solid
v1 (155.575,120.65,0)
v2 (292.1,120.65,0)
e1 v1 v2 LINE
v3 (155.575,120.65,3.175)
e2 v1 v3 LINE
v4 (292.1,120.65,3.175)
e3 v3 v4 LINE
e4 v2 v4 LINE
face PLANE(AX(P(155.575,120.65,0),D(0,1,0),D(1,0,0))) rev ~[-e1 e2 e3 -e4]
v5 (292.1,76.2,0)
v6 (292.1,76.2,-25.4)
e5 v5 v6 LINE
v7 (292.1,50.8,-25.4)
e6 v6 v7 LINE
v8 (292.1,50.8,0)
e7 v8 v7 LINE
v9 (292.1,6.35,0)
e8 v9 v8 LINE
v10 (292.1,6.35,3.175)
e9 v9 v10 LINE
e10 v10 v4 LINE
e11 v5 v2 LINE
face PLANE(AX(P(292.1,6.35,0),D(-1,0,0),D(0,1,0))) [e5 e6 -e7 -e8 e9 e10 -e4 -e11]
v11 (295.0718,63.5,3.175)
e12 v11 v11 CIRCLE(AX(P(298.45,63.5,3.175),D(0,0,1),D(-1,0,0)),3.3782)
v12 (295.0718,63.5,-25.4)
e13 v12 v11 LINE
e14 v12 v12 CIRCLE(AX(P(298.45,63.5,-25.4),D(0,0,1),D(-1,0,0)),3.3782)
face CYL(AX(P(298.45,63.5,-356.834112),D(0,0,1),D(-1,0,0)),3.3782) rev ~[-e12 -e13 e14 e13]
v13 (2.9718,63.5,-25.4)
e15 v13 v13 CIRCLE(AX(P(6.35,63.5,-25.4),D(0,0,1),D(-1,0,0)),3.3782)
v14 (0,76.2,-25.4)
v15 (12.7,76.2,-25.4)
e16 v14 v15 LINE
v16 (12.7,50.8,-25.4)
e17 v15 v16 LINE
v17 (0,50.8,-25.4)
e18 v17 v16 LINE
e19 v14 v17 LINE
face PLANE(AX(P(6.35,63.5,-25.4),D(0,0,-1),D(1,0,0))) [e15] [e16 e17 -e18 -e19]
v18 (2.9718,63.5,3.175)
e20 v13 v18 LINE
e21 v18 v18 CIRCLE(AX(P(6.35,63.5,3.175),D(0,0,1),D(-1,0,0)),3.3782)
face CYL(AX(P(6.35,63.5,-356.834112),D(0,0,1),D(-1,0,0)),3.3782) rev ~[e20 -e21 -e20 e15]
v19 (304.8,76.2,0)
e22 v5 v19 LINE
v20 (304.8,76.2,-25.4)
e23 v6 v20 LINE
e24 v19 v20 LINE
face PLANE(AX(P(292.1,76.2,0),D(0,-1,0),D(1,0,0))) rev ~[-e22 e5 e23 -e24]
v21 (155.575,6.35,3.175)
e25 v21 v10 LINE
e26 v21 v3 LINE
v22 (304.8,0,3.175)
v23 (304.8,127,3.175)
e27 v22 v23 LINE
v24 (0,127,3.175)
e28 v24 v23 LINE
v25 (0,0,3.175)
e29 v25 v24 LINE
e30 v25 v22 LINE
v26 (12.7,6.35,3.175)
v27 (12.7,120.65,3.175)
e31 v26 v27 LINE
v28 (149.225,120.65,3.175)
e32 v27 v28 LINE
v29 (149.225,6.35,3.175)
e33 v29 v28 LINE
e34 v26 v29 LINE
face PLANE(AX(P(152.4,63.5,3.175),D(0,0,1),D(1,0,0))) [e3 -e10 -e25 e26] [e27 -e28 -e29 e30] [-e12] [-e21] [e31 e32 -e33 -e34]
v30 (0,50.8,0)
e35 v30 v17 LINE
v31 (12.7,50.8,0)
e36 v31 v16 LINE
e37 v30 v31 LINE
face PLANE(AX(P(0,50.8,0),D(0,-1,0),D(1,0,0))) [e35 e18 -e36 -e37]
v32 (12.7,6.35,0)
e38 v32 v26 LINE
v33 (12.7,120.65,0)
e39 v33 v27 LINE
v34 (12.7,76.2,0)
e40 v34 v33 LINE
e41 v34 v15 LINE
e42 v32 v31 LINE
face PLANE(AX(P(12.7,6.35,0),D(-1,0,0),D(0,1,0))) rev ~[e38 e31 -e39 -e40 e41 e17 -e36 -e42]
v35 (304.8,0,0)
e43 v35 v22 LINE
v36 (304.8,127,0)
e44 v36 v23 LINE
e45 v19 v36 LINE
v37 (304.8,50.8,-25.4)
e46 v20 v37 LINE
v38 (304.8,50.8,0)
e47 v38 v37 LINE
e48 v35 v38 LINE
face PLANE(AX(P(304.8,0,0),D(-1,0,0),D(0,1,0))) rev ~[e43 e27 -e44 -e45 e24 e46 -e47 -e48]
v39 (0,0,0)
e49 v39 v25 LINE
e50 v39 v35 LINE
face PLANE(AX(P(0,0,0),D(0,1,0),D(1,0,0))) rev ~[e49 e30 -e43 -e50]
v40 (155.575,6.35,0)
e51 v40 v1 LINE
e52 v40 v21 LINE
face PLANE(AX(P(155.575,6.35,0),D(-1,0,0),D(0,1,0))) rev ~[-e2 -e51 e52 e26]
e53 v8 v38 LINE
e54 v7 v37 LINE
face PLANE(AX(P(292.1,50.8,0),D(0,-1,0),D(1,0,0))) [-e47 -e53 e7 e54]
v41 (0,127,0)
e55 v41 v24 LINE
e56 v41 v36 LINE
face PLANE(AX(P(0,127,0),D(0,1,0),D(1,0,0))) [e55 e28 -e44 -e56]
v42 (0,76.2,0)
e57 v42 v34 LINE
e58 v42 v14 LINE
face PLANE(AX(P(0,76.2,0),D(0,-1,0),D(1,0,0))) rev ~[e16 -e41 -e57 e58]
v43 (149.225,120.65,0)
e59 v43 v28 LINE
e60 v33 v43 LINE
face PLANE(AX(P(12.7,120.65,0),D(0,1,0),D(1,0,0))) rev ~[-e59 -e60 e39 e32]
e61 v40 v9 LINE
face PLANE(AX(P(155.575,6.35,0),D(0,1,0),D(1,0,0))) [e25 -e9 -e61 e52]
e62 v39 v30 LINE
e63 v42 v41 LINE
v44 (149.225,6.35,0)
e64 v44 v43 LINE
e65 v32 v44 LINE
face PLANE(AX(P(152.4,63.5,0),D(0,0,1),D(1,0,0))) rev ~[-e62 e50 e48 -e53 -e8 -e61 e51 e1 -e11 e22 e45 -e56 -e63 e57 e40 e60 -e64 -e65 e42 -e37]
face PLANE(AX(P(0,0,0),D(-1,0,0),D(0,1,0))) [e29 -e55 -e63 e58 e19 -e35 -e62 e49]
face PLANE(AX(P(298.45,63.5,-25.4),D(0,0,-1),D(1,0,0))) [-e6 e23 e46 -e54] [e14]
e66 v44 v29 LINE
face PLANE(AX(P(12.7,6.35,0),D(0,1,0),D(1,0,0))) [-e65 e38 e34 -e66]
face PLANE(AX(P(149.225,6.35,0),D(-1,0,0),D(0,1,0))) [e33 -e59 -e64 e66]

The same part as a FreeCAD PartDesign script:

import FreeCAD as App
import Part
import Sketcher

V = App.Vector
Q = App.Units.Quantity

doc = App.newDocument("Part")
params = doc.addObject("Spreadsheet::Sheet", "Params")
for row, (alias, value) in enumerate([
    ("sketch1_width", "12 in"),
    ("sketch1_height", "5 in"),
    ("sketch1_height2", "4.5 in"),
    ("sketch1_width2", "5.375 in"),
    ("pad1_length", "0.125 in"),
    ("sketch2_height", "1 in"),
    ("sketch2_width", "0.5 in"),
    ("pad2_length", "1 in"),
    ("sketch3_diameter", "0.266 in"),
    ("hole_diameter", "0.266 in"),
], start=1):
    params.set(f"A{row}", alias)
    params.set(f"B{row}", "=" + value)
    params.setAlias(f"B{row}", alias)

body = doc.addObject("PartDesign::Body", "Body")

sketch1 = body.newObject("Sketcher::SketchObject", "Sketch")
sketch1.AttachmentSupport = (doc.getObject("XY_Plane"), [""])
sketch1.MapMode = "FlatFace"
sketch1.addGeometry([
    Part.LineSegment(V(0, 127, 0), V(0, 0, 0)),
    Part.LineSegment(V(0, 0, 0), V(305, 0, 0)),
    Part.LineSegment(V(305, 0, 0), V(305, 127, 0)),
    Part.LineSegment(V(305, 127, 0), V(0, 127, 0)),
    Part.LineSegment(V(149, 6, 0), V(13, 6, 0)),
    Part.LineSegment(V(13, 6, 0), V(13, 121, 0)),
    Part.LineSegment(V(13, 121, 0), V(149, 121, 0)),
    Part.LineSegment(V(149, 121, 0), V(149, 6, 0)),
    Part.LineSegment(V(292, 6, 0), V(156, 6, 0)),
    Part.LineSegment(V(156, 6, 0), V(156, 121, 0)),
    Part.LineSegment(V(156, 121, 0), V(292, 121, 0)),
    Part.LineSegment(V(292, 121, 0), V(292, 6, 0)),
], False)
sketch1.addConstraint([
    Sketcher.Constraint("Coincident", 0, 2, 1, 1),
    Sketcher.Constraint("Coincident", 1, 2, 2, 1),
    Sketcher.Constraint("Coincident", 2, 2, 3, 1),
    Sketcher.Constraint("Coincident", 3, 2, 0, 1),
    Sketcher.Constraint("Coincident", 4, 2, 5, 1),
    Sketcher.Constraint("Coincident", 5, 2, 6, 1),
    Sketcher.Constraint("Coincident", 6, 2, 7, 1),
    Sketcher.Constraint("Coincident", 7, 2, 4, 1),
    Sketcher.Constraint("Coincident", 8, 2, 9, 1),
    Sketcher.Constraint("Coincident", 9, 2, 10, 1),
    Sketcher.Constraint("Coincident", 10, 2, 11, 1),
    Sketcher.Constraint("Coincident", 11, 2, 8, 1),
    Sketcher.Constraint("Vertical", 0),
    Sketcher.Constraint("Horizontal", 1),
    Sketcher.Constraint("Vertical", 2),
    Sketcher.Constraint("Horizontal", 3),
    Sketcher.Constraint("Horizontal", 4),
    Sketcher.Constraint("Vertical", 5),
    Sketcher.Constraint("Horizontal", 6),
    Sketcher.Constraint("Vertical", 7),
    Sketcher.Constraint("Horizontal", 8),
    Sketcher.Constraint("Vertical", 9),
    Sketcher.Constraint("Horizontal", 10),
    Sketcher.Constraint("Vertical", 11),
    Sketcher.Constraint("Coincident", 0, 2, -1, 1),
    Sketcher.Constraint("Horizontal", 7, 2, 8, 2),
    Sketcher.Constraint("Horizontal", 6, 2, 9, 2),
    Sketcher.Constraint("Equal", 6, 8),
    Sketcher.Constraint("DistanceX", 1, 1, 1, 2, Q("12 in")),
    Sketcher.Constraint("DistanceY", 0, 2, 0, 1, Q("5 in")),
    Sketcher.Constraint("DistanceY", 5, 1, 5, 2, Q("4.5 in")),
    Sketcher.Constraint("DistanceX", -1, 1, 4, 2, Q("0.5 in")),
    Sketcher.Constraint("DistanceX", -1, 1, 10, 2, Q("11.5 in")),
    Sketcher.Constraint("DistanceX", 4, 2, 4, 1, Q("5.375 in")),
    Sketcher.Constraint("DistanceY", -1, 1, 4, 2, Q("0.25 in")),
])
sketch1.setExpression("Constraints[28]", "Params.sketch1_width")
sketch1.setExpression("Constraints[29]", "Params.sketch1_height")
sketch1.setExpression("Constraints[30]", "Params.sketch1_height2")
sketch1.setExpression("Constraints[33]", "Params.sketch1_width2")
pad1 = body.newObject("PartDesign::Pad", "Pad")
pad1.Profile = sketch1
pad1.setExpression("Length", "Params.pad1_length")

sketch2 = body.newObject("Sketcher::SketchObject", "Sketch001")
sketch2.AttachmentSupport = (doc.getObject("XY_Plane"), [""])
sketch2.MapMode = "FlatFace"
sketch2.addGeometry([
    Part.LineSegment(V(0, 51, 0), V(0, 76, 0)),
    Part.LineSegment(V(0, 76, 0), V(13, 76, 0)),
    Part.LineSegment(V(13, 76, 0), V(13, 51, 0)),
    Part.LineSegment(V(13, 51, 0), V(0, 51, 0)),
    Part.LineSegment(V(292, 51, 0), V(292, 76, 0)),
    Part.LineSegment(V(292, 76, 0), V(305, 76, 0)),
    Part.LineSegment(V(305, 76, 0), V(305, 51, 0)),
    Part.LineSegment(V(305, 51, 0), V(292, 51, 0)),
], False)
sketch2.addConstraint([
    Sketcher.Constraint("Coincident", 0, 2, 1, 1),
    Sketcher.Constraint("Coincident", 1, 2, 2, 1),
    Sketcher.Constraint("Coincident", 2, 2, 3, 1),
    Sketcher.Constraint("Coincident", 3, 2, 0, 1),
    Sketcher.Constraint("Coincident", 4, 2, 5, 1),
    Sketcher.Constraint("Coincident", 5, 2, 6, 1),
    Sketcher.Constraint("Coincident", 6, 2, 7, 1),
    Sketcher.Constraint("Coincident", 7, 2, 4, 1),
    Sketcher.Constraint("Vertical", 0),
    Sketcher.Constraint("Horizontal", 1),
    Sketcher.Constraint("Vertical", 2),
    Sketcher.Constraint("Horizontal", 3),
    Sketcher.Constraint("Vertical", 4),
    Sketcher.Constraint("Horizontal", 5),
    Sketcher.Constraint("Vertical", 6),
    Sketcher.Constraint("Horizontal", 7),
    Sketcher.Constraint("PointOnObject", 0, 2, -2),
    Sketcher.Constraint("Horizontal", 1, 2, 4, 2),
    Sketcher.Constraint("Horizontal", 3, 2, 6, 2),
    Sketcher.Constraint("Equal", 3, 5),
    Sketcher.Constraint("DistanceY", 0, 1, 0, 2, Q("1 in")),
    Sketcher.Constraint("DistanceX", 1, 1, 1, 2, Q("0.5 in")),
    Sketcher.Constraint("DistanceY", -1, 1, 0, 2, Q("3 in")),
    Sketcher.Constraint("DistanceX", -1, 1, 5, 2, Q("12 in")),
])
sketch2.setExpression("Constraints[20]", "Params.sketch2_height")
sketch2.setExpression("Constraints[21]", "Params.sketch2_width")
pad2 = body.newObject("PartDesign::Pad", "Pad001")
pad2.Profile = sketch2
pad2.setExpression("Length", "Params.pad2_length")
pad2.Reversed = True

sketch3 = body.newObject("Sketcher::SketchObject", "Sketch002")
sketch3.AttachmentSupport = (doc.getObject("XY_Plane"), [""])
sketch3.MapMode = "FlatFace"
sketch3.AttachmentOffset = App.Placement(V(0, 0, -1 * 25.4), App.Rotation())
sketch3.addGeometry([
    Part.Circle(V(6.3, 63.5, 0), V(0, 0, 1), 3.4),
    Part.Circle(V(298.4, 63.5, 0), V(0, 0, 1), 3.4),
], False)
sketch3.addConstraint([
    Sketcher.Constraint("Equal", 0, 1),
    Sketcher.Constraint("Horizontal", 0, 3, 1, 3),
    Sketcher.Constraint("Diameter", 0, Q("0.266 in")),
    Sketcher.Constraint("DistanceY", -1, 1, 0, 3, Q("2.5 in")),
    Sketcher.Constraint("DistanceX", 0, 3, 1, 3, Q("11.5 in")),
    Sketcher.Constraint("DistanceX", -1, 1, 0, 3, Q("0.25 in")),
])
sketch3.setExpression("Constraints[2]", "Params.sketch3_diameter")
doc.recompute()
hole = body.newObject("PartDesign::Hole", "Hole")
hole.Profile = sketch3
hole.ThreadType = "None"
hole.setExpression("Diameter", "Params.hole_diameter")
hole.DepthType = "ThroughAll"
hole.Reversed = True

doc.recompute()
